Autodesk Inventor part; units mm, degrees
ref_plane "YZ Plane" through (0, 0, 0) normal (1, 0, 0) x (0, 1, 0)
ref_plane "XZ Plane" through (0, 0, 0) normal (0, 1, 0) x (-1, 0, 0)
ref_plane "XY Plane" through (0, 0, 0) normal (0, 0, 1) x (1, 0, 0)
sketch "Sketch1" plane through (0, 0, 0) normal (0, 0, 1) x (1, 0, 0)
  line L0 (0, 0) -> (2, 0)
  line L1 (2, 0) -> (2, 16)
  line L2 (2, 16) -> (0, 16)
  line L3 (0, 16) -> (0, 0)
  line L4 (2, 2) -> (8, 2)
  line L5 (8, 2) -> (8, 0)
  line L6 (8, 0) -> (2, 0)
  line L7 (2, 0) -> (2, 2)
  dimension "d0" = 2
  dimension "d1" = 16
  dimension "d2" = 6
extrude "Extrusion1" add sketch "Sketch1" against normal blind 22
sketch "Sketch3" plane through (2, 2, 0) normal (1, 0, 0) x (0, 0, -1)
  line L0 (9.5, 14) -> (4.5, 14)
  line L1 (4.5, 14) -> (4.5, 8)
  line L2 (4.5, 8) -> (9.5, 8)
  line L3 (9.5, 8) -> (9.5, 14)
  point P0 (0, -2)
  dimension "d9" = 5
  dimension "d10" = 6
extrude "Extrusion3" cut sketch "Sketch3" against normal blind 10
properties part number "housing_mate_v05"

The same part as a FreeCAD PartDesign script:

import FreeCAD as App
import Part
import Sketcher
from FreeCAD import Vector

doc = App.newDocument("Part")
body = doc.addObject("PartDesign::Body", "Body")

sketch1 = body.newObject("Sketcher::SketchObject", "Sketch")
sketch1.AttachmentSupport = (doc.getObject("XY_Plane"), [""])
sketch1.MapMode = "FlatFace"
sketch1.addGeometry(Part.LineSegment(Vector(0, 16, 0), Vector(0, 0, 0)), False)
sketch1.addGeometry(Part.LineSegment(Vector(0, 0, 0), Vector(8, 0, 0)), False)
sketch1.addGeometry(Part.LineSegment(Vector(8, 0, 0), Vector(8, 2, 0)), False)
sketch1.addGeometry(Part.LineSegment(Vector(8, 2, 0), Vector(2, 2, 0)), False)
sketch1.addGeometry(Part.LineSegment(Vector(2, 2, 0), Vector(2, 16, 0)), False)
sketch1.addGeometry(Part.LineSegment(Vector(2, 16, 0), Vector(0, 16, 0)), False)
sketch1.addConstraint(Sketcher.Constraint("Coincident", 0, 2, 1, 1))
sketch1.addConstraint(Sketcher.Constraint("Coincident", 1, 2, 2, 1))
sketch1.addConstraint(Sketcher.Constraint("Coincident", 2, 2, 3, 1))
sketch1.addConstraint(Sketcher.Constraint("Coincident", 3, 2, 4, 1))
sketch1.addConstraint(Sketcher.Constraint("Coincident", 4, 2, 5, 1))
sketch1.addConstraint(Sketcher.Constraint("Coincident", 5, 2, 0, 1))
sketch1.addConstraint(Sketcher.Constraint("Vertical", 0))
sketch1.addConstraint(Sketcher.Constraint("Horizontal", 1))
sketch1.addConstraint(Sketcher.Constraint("Vertical", 2))
sketch1.addConstraint(Sketcher.Constraint("Horizontal", 3))
sketch1.addConstraint(Sketcher.Constraint("Vertical", 4))
sketch1.addConstraint(Sketcher.Constraint("Horizontal", 5))
sketch1.addConstraint(Sketcher.Constraint("Coincident", 0, 2, -1, 1))
sketch1.addConstraint(Sketcher.Constraint("Equal", 5, 2))
sketch1.addConstraint(Sketcher.Constraint("DistanceX", 3, 2, 3, 1, 6.0))
sketch1.addConstraint(Sketcher.Constraint("DistanceX", 5, 2, 5, 1, 2.0))
sketch1.addConstraint(Sketcher.Constraint("DistanceY", 0, 2, 0, 1, 16.0))
pad1 = body.newObject("PartDesign::Pad", "Pad")
pad1.Profile = sketch1
pad1.Length = 22
pad1.Reversed = True

sketch2 = body.newObject("Sketcher::SketchObject", "Sketch001")
sketch2.AttachmentSupport = (doc.getObject("YZ_Plane"), [""])
sketch2.MapMode = "FlatFace"
sketch2.AttachmentOffset = App.Placement(Vector(0, 0, 2), App.Rotation())
sketch2.addGeometry(Part.LineSegment(Vector(10, -10, 0), Vector(16, -10, 0)), False)
sketch2.addGeometry(Part.LineSegment(Vector(16, -10, 0), Vector(16, -4, 0)), False)
sketch2.addGeometry(Part.LineSegment(Vector(16, -4, 0), Vector(10, -4, 0)), False)
sketch2.addGeometry(Part.LineSegment(Vector(10, -4, 0), Vector(10, -10, 0)), False)
sketch2.addConstraint(Sketcher.Constraint("Coincident", 0, 2, 1, 1))
sketch2.addConstraint(Sketcher.Constraint("Coincident", 1, 2, 2, 1))
sketch2.addConstraint(Sketcher.Constraint("Coincident", 2, 2, 3, 1))
sketch2.addConstraint(Sketcher.Constraint("Coincident", 3, 2, 0, 1))
sketch2.addConstraint(Sketcher.Constraint("Horizontal", 0))
sketch2.addConstraint(Sketcher.Constraint("Vertical", 1))
sketch2.addConstraint(Sketcher.Constraint("Horizontal", 2))
sketch2.addConstraint(Sketcher.Constraint("Vertical", 3))
sketch2.addConstraint(Sketcher.Constraint("DistanceX", 0, 1, 0, 2, 6.0))
sketch2.addConstraint(Sketcher.Constraint("DistanceY", 1, 1, 1, 2, 5.0))
sketch2.addConstraint(Sketcher.Constraint("DistanceX", -1, 1, 0, 2, 16.0))
sketch2.addConstraint(Sketcher.Constraint("DistanceY", 0, 2, -1, 1, 9.5))
pocket1 = body.newObject("PartDesign::Pocket", "Pocket")
pocket1.Profile = sketch2
pocket1.Length = 10

doc.recompute()
